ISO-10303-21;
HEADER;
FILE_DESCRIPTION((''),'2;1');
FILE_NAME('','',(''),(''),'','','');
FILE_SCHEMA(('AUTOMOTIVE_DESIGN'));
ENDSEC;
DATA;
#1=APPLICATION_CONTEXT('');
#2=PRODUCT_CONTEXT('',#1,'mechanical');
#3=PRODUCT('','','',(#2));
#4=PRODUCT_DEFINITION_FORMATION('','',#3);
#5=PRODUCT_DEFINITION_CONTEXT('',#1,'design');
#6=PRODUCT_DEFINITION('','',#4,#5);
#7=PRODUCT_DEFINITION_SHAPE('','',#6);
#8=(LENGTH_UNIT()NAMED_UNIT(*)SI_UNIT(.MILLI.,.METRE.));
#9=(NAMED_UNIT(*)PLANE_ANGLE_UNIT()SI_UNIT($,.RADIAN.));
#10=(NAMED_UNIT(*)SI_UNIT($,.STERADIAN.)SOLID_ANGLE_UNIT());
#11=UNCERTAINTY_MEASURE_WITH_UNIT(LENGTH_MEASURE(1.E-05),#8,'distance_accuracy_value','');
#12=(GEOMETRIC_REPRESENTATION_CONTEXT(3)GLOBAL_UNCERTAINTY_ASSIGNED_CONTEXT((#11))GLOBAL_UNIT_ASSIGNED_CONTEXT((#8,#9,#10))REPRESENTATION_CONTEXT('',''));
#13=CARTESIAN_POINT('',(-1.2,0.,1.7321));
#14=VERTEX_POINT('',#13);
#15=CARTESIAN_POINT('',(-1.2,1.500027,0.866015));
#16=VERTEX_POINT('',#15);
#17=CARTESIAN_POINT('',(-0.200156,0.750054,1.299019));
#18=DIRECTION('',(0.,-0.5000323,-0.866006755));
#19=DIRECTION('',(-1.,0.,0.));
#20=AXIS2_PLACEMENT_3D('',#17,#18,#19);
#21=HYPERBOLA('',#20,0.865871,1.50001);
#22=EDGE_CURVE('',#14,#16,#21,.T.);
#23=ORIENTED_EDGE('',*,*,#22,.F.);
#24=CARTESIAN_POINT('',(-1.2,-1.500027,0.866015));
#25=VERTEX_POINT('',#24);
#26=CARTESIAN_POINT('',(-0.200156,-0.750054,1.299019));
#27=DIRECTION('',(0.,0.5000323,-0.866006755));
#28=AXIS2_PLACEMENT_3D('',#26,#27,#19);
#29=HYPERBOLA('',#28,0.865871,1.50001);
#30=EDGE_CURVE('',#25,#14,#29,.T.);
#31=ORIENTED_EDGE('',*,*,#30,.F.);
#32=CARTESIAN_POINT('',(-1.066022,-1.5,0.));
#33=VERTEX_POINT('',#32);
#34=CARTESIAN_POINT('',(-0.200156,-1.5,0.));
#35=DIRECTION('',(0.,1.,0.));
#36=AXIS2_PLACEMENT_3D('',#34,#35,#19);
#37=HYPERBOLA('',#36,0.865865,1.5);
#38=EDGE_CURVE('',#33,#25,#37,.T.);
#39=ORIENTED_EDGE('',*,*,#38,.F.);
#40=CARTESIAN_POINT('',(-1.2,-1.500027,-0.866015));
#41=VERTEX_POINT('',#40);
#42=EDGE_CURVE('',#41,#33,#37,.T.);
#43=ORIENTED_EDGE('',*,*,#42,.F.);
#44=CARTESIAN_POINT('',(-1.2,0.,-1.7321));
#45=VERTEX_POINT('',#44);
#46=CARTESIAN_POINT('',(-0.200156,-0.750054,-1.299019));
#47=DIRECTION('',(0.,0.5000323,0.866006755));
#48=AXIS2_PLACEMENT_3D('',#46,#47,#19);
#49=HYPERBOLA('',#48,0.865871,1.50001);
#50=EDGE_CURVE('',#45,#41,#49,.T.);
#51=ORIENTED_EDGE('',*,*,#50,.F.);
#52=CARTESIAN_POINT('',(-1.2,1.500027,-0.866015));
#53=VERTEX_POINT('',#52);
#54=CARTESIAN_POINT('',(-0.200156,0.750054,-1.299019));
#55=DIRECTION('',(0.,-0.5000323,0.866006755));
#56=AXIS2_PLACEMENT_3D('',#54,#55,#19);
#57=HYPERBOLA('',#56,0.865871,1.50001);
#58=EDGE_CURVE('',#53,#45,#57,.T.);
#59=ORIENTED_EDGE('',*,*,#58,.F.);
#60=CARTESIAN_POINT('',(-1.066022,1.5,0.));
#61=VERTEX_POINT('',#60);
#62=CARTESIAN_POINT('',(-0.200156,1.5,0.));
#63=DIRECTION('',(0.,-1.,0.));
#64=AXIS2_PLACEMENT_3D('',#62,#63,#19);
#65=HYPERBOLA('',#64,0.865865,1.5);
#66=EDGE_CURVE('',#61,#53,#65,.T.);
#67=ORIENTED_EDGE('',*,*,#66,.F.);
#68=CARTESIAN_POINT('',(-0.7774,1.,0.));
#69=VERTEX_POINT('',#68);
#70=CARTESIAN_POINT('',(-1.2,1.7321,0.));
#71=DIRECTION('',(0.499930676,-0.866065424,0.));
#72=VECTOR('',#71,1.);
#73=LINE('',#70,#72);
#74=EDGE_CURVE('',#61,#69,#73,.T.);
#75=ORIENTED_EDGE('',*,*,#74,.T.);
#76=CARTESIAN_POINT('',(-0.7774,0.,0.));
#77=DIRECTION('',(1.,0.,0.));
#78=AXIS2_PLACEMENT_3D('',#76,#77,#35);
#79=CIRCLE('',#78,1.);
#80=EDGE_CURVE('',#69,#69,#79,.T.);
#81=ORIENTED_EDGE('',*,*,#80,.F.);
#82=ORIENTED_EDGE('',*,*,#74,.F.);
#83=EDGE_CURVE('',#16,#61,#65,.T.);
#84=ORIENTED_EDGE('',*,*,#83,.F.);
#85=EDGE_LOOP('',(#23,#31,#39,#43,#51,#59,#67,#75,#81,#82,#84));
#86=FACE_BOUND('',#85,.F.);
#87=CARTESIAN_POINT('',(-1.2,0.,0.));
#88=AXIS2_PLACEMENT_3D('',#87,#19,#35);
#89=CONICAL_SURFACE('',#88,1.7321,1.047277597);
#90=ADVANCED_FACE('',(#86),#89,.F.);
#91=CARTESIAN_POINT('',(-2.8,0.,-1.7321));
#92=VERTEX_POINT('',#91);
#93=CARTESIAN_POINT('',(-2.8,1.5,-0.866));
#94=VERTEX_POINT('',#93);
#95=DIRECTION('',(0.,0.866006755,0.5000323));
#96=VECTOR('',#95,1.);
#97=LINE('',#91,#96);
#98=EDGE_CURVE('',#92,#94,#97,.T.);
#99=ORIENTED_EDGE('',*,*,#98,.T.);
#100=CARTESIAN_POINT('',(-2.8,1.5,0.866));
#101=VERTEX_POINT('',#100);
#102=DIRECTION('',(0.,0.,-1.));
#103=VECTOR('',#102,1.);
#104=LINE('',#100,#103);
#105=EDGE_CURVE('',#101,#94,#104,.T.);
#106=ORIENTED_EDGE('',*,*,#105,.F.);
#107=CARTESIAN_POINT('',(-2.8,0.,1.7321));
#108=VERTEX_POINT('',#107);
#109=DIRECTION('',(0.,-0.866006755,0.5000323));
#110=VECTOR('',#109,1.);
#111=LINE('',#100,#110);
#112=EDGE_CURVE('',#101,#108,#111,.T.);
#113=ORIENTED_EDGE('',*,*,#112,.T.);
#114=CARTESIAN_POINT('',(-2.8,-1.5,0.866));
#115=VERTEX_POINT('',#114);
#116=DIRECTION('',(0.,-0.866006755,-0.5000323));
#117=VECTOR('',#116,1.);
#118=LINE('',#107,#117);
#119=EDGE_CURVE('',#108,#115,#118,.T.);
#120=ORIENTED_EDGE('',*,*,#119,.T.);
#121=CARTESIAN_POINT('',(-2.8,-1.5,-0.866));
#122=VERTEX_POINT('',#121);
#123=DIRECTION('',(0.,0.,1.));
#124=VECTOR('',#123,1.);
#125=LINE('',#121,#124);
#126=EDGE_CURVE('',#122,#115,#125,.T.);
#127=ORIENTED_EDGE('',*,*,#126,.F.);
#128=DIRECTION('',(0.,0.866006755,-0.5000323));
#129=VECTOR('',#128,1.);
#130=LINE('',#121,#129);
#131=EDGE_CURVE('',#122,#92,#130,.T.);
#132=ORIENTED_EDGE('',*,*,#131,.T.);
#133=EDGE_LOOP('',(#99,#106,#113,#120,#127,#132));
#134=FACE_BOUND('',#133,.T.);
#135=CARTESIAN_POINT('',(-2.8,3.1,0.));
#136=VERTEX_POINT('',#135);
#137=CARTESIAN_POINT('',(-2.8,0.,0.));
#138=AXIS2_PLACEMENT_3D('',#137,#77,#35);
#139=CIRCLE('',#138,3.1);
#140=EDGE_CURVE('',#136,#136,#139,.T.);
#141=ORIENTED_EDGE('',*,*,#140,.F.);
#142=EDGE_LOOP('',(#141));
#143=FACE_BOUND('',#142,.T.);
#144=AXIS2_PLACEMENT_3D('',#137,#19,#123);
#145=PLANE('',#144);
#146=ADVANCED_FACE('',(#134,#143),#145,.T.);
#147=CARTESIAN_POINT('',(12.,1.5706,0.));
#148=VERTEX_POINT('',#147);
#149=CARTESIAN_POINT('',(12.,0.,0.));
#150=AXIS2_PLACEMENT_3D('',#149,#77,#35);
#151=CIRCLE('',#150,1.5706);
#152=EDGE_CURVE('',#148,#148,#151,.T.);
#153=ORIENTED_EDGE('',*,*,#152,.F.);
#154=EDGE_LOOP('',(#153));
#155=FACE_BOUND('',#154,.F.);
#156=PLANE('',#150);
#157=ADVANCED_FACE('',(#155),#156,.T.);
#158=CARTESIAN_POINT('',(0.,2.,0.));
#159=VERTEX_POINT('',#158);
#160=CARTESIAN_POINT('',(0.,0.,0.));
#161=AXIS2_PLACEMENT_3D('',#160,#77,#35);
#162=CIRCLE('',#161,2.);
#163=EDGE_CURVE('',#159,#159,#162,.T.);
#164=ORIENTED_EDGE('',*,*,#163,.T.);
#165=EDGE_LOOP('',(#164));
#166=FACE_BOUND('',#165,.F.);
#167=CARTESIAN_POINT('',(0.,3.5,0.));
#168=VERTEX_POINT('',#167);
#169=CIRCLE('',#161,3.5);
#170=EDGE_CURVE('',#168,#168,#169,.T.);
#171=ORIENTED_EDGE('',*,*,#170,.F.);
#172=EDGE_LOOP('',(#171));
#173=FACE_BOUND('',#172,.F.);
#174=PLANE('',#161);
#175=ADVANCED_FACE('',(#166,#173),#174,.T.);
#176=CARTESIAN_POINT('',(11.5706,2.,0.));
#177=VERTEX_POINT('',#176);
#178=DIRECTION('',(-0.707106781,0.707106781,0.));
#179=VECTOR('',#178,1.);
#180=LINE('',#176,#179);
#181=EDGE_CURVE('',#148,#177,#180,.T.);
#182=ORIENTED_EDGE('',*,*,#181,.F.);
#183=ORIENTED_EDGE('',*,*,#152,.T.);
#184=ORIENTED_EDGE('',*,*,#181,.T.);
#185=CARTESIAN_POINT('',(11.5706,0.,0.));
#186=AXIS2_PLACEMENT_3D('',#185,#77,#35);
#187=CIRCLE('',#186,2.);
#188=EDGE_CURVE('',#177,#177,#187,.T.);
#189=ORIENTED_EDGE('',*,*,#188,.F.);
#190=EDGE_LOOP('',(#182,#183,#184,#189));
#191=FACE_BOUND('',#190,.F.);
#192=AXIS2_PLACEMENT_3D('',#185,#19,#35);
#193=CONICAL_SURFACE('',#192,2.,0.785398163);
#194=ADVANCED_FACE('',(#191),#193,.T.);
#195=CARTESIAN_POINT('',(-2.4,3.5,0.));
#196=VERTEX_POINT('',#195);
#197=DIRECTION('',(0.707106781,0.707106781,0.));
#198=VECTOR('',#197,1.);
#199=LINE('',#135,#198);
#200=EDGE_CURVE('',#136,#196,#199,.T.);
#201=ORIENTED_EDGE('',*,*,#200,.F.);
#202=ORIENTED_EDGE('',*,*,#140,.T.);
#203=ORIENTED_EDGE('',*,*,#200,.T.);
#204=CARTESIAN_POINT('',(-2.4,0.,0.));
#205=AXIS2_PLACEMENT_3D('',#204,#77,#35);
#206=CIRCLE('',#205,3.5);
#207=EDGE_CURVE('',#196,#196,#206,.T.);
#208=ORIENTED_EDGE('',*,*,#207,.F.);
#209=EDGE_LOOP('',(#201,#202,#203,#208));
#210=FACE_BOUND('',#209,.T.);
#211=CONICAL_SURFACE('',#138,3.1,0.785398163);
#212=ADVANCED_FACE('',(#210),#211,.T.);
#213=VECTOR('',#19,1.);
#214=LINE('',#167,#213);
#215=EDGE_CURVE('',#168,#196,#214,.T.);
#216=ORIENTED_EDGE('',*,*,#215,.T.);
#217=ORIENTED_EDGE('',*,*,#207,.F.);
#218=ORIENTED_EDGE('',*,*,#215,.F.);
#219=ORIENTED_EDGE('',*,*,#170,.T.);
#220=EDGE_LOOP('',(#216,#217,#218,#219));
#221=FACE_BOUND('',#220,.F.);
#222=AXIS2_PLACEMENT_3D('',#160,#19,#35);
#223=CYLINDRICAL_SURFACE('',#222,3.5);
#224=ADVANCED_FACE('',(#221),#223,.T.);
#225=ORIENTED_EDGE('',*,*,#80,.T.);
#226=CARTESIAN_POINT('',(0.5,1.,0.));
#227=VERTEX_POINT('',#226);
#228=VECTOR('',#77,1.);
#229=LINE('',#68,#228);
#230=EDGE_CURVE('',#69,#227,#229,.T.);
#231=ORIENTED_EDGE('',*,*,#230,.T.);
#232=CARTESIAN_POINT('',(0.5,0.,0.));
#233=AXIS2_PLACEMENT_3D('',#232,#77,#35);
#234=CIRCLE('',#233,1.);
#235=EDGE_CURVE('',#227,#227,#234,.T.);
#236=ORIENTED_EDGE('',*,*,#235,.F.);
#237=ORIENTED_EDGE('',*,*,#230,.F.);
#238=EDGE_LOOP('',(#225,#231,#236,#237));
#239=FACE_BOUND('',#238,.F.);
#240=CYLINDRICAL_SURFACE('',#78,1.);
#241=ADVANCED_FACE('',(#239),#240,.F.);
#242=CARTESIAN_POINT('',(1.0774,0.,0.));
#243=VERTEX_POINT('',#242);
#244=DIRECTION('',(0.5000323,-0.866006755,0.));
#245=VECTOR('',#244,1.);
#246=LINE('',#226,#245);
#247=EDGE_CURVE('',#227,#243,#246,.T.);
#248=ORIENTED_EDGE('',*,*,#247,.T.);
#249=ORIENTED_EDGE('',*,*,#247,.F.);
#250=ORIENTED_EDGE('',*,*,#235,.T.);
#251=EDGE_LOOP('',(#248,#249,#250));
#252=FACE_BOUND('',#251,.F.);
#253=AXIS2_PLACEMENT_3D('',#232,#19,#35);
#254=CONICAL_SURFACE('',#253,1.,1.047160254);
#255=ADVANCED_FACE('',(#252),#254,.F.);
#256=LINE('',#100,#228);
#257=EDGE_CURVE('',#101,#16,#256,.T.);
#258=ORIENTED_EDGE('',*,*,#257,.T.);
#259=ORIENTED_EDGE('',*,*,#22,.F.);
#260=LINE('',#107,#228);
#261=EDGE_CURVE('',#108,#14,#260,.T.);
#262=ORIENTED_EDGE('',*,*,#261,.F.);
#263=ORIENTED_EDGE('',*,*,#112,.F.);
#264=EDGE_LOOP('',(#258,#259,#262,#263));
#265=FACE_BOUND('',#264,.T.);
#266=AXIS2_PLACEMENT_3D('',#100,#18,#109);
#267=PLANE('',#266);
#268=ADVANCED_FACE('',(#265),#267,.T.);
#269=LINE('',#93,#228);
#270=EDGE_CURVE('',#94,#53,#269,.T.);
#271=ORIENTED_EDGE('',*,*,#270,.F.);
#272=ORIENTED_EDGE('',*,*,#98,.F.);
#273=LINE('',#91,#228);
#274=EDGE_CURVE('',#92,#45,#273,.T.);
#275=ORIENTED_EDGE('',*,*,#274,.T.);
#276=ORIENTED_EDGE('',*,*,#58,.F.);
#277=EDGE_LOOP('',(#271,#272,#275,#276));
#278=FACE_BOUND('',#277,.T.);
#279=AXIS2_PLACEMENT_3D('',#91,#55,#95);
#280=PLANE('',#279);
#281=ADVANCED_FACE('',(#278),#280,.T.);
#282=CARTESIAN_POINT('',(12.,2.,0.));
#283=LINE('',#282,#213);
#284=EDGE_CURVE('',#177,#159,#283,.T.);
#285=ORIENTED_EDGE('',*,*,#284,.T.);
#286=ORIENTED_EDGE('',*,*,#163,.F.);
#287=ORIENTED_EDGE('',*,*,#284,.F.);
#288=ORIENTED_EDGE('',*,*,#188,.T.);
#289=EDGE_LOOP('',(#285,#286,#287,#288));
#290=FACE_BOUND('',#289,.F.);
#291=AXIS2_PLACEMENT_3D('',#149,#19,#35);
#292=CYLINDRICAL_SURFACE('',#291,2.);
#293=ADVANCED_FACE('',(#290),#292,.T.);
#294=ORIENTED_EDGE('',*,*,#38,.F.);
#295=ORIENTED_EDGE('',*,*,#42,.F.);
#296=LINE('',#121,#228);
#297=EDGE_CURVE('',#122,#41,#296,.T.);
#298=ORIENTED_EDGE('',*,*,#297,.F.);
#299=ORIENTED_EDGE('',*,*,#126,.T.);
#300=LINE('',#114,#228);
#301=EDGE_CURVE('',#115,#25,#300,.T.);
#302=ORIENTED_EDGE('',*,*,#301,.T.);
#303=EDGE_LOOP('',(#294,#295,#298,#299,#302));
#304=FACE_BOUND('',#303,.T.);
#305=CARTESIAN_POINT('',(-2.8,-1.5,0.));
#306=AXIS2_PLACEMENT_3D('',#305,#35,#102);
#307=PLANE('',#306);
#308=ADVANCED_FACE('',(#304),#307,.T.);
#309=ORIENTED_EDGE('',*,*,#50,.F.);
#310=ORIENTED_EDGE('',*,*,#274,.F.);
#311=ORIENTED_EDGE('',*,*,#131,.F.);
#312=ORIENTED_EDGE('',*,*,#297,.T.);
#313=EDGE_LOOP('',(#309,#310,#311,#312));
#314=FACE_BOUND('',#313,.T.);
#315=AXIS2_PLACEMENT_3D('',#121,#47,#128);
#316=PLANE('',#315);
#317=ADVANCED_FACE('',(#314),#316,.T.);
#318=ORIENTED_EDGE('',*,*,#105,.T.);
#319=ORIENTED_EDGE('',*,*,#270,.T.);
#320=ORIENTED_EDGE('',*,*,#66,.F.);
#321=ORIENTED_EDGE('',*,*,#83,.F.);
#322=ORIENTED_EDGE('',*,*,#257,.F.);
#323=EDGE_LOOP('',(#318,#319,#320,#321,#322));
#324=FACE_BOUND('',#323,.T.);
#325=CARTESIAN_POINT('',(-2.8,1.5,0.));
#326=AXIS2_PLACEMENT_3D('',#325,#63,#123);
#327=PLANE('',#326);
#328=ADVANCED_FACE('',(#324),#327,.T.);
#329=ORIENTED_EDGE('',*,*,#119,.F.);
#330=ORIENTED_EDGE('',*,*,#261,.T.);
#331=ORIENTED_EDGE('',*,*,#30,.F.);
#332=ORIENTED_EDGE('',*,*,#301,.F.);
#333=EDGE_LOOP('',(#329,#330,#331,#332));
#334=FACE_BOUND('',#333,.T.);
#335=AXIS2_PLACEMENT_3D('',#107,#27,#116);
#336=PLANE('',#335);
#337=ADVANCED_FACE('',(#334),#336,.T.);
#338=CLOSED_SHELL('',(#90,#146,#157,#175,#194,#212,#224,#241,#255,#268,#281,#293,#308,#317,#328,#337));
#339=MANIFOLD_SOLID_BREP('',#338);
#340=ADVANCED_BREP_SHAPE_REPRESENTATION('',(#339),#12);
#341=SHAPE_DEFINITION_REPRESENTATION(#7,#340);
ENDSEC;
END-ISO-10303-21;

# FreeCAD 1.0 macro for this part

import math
import FreeCAD as App
import Part
import Sketcher


def edges_at(feature, points):
    """Names of the edges that pass closest to the given points."""
    edges = feature.Shape.Edges
    near = lambda p: min(range(len(edges)), key=lambda i: edges[i].distToShape(Part.Vertex(*p))[0])
    return sorted({f"Edge{near(p) + 1}" for p in points})


def add_polygon(sketch, points):
    """Adds a closed chain of lines whose ends are joined by coincident constraints."""
    first, n = sketch.GeometryCount, len(points)
    for a, b in zip(points, points[1:] + points[:1]):
        sketch.addGeometry(Part.LineSegment(App.Vector(*a, 0), App.Vector(*b, 0)), False)
    for i in range(n):
        sketch.addConstraint(Sketcher.Constraint("Coincident", first + i, 2, first + (i + 1) % n, 1))

doc = App.newDocument("Part")
body = doc.addObject("PartDesign::Body", "Body")

sketch1 = body.newObject("Sketcher::SketchObject", "Sketch")
sketch1.AttachmentSupport = (doc.getObject("XY_Plane"), [""])
sketch1.MapMode = "FlatFace"
add_polygon(sketch1, [(0.5, 1), (1.1, 0), (12, 0), (12, 2), (0, 2), (0, 3.5), (-2.8, 3.5), (-2.8, 1.7), (-1.2, 1.7), (-0.8, 1)])
sketch1.addConstraint(Sketcher.Constraint("Horizontal", 1))
sketch1.addConstraint(Sketcher.Constraint("Vertical", 2))
sketch1.addConstraint(Sketcher.Constraint("Horizontal", 3))
sketch1.addConstraint(Sketcher.Constraint("Vertical", 4))
sketch1.addConstraint(Sketcher.Constraint("Horizontal", 5))
sketch1.addConstraint(Sketcher.Constraint("Vertical", 6))
sketch1.addConstraint(Sketcher.Constraint("Horizontal", 7))
sketch1.addConstraint(Sketcher.Constraint("Horizontal", 9))
sketch1.addConstraint(Sketcher.Constraint("PointOnObject", 0, 2, -1))
sketch1.addConstraint(Sketcher.Constraint("PointOnObject", 3, 2, -2))
sketch1.addConstraint(Sketcher.Constraint("Parallel", 0, 8))
sketch1.addConstraint(Sketcher.Constraint("DistanceX", 3, 2, 3, 1, 12.0))
sketch1.addConstraint(Sketcher.Constraint("DistanceY", 2, 1, 2, 2, 2.0))
sketch1.addConstraint(Sketcher.Constraint("DistanceX", 5, 2, 5, 1, 2.8))
sketch1.addConstraint(Sketcher.Constraint("DistanceX", 7, 1, 7, 2, 1.6))
sketch1.addConstraint(Sketcher.Constraint("DistanceY", 4, 1, 4, 2, 1.5))
sketch1.addConstraint(Sketcher.Constraint("DistanceY", -1, 1, 8, 2, 1.0))
sketch1.addConstraint(Sketcher.Constraint("DistanceX", -1, 1, 9, 2, 0.5))
sketch1.addConstraint(Sketcher.Constraint("DistanceY", 6, 2, 6, 1, 1.768))
sketch1.addConstraint(Sketcher.Constraint("DistanceX", 1, 1, 1, 2, 10.9226))
revolution = body.newObject("PartDesign::Revolution", "Revolution")
revolution.Profile = sketch1
revolution.ReferenceAxis = (sketch1, ["H_Axis"])
revolution.Angle = 360

sketch2 = body.newObject("Sketcher::SketchObject", "Sketch001")
sketch2.AttachmentSupport = (doc.getObject("XY_Plane"), [""])
sketch2.MapMode = "FlatFace"
add_polygon(sketch2, [(-2.8, 3.1), (-2.4, 3.5), (-2.8, 3.5)])
sketch2.addConstraint(Sketcher.Constraint("Horizontal", 1))
sketch2.addConstraint(Sketcher.Constraint("Vertical", 2))
sketch2.addConstraint(Sketcher.Constraint("Equal", 1, 2))
sketch2.addConstraint(Sketcher.Constraint("DistanceX", 1, 2, 1, 1, 0.4))
sketch2.addConstraint(Sketcher.Constraint("DistanceX", 1, 2, -1, 1, 2.8))
sketch2.addConstraint(Sketcher.Constraint("DistanceY", -1, 1, 0, 2, 3.5))
groove = body.newObject("PartDesign::Groove", "Groove")
groove.Profile = sketch2
groove.ReferenceAxis = (sketch2, ["H_Axis"])
groove.Angle = 360

sketch3 = body.newObject("Sketcher::SketchObject", "Sketch002")
sketch3.AttachmentSupport = (doc.getObject("YZ_Plane"), [""])
sketch3.MapMode = "FlatFace"
sketch3.AttachmentOffset = App.Placement(App.Vector(0, 0, -2.8), App.Rotation())
sketch3.addGeometry(Part.LineSegment(App.Vector(1.5, 0.9, 0), App.Vector(0, 1.7, 0)), False)
sketch3.addGeometry(Part.ArcOfCircle(Part.Circle(App.Vector(0, 0, 0), App.Vector(0, 0, 1), 1.7), math.radians(30), math.radians(90)), False)
sketch3.addGeometry(Part.ArcOfCircle(Part.Circle(App.Vector(0, 0, 0), App.Vector(0, 0, 1), 1.7), math.radians(90), math.radians(150)), False)
sketch3.addGeometry(Part.LineSegment(App.Vector(0, 1.7, 0), App.Vector(-1.5, 0.9, 0)), False)
sketch3.addGeometry(Part.ArcOfCircle(Part.Circle(App.Vector(0, 0, 0), App.Vector(0, 0, 1), 1.7), math.radians(-30), math.radians(30)), False)
sketch3.addGeometry(Part.LineSegment(App.Vector(1.5, 0.9, 0), App.Vector(1.5, -0.9, 0)), False)
sketch3.addGeometry(Part.LineSegment(App.Vector(-1.5, 0.9, 0), App.Vector(-1.5, -0.9, 0)), False)
sketch3.addGeometry(Part.ArcOfCircle(Part.Circle(App.Vector(0, 0, 0), App.Vector(0, 0, 1), 1.7), math.radians(150), math.radians(210)), False)
sketch3.addGeometry(Part.LineSegment(App.Vector(-1.5, -0.9, 0), App.Vector(0, -1.7, 0)), False)
sketch3.addGeometry(Part.ArcOfCircle(Part.Circle(App.Vector(0, 0, 0), App.Vector(0, 0, 1), 1.7), math.radians(-150), math.radians(-90)), False)
sketch3.addGeometry(Part.ArcOfCircle(Part.Circle(App.Vector(0, 0, 0), App.Vector(0, 0, 1), 1.7), math.radians(-90), math.radians(-30)), False)
sketch3.addGeometry(Part.LineSegment(App.Vector(0, -1.7, 0), App.Vector(1.5, -0.9, 0)), False)
sketch3.addConstraint(Sketcher.Constraint("Coincident", 0, 1, 1, 1))
sketch3.addConstraint(Sketcher.Constraint("Coincident", 1, 2, 0, 2))
sketch3.addConstraint(Sketcher.Constraint("Coincident", 2, 1, 3, 1))
sketch3.addConstraint(Sketcher.Constraint("Coincident", 3, 2, 2, 2))
sketch3.addConstraint(Sketcher.Constraint("Coincident", 4, 1, 5, 2))
sketch3.addConstraint(Sketcher.Constraint("Coincident", 5, 1, 4, 2))
sketch3.addConstraint(Sketcher.Constraint("Coincident", 6, 1, 7, 1))
sketch3.addConstraint(Sketcher.Constraint("Coincident", 7, 2, 6, 2))
sketch3.addConstraint(Sketcher.Constraint("Coincident", 8, 1, 9, 1))
sketch3.addConstraint(Sketcher.Constraint("Coincident", 9, 2, 8, 2))
sketch3.addConstraint(Sketcher.Constraint("Coincident", 10, 1, 11, 1))
sketch3.addConstraint(Sketcher.Constraint("Coincident", 11, 2, 10, 2))
sketch3.addConstraint(Sketcher.Constraint("Vertical", 5))
sketch3.addConstraint(Sketcher.Constraint("Vertical", 6))
sketch3.addConstraint(Sketcher.Constraint("Coincident", 1, 3, -1, 1))
sketch3.addConstraint(Sketcher.Constraint("Coincident", 2, 3, -1, 1))
sketch3.addConstraint(Sketcher.Constraint("Coincident", 4, 3, -1, 1))
sketch3.addConstraint(Sketcher.Constraint("Coincident", 7, 3, -1, 1))
sketch3.addConstraint(Sketcher.Constraint("Coincident", 9, 3, -1, 1))
sketch3.addConstraint(Sketcher.Constraint("Coincident", 10, 3, -1, 1))
sketch3.addConstraint(Sketcher.Constraint("Coincident", 2, 1, 1, 2))
sketch3.addConstraint(Sketcher.Constraint("Coincident", 5, 1, 0, 1))
sketch3.addConstraint(Sketcher.Constraint("Coincident", 6, 1, 3, 2))
sketch3.addConstraint(Sketcher.Constraint("Coincident", 8, 1, 7, 2))
sketch3.addConstraint(Sketcher.Constraint("Coincident", 10, 1, 9, 2))
sketch3.addConstraint(Sketcher.Constraint("PointOnObject", 1, 2, -2))
sketch3.addConstraint(Sketcher.Constraint("PointOnObject", 9, 2, -2))
sketch3.addConstraint(Sketcher.Constraint("Parallel", 0, 8))
sketch3.addConstraint(Sketcher.Constraint("Parallel", 3, 11))
sketch3.addConstraint(Sketcher.Constraint("Radius", 1, 1.732))
sketch3.addConstraint(Sketcher.Constraint("DistanceX", -1, 1, 0, 1, 1.5))
pad1 = body.newObject("PartDesign::Pad", "Pad")
pad1.Profile = sketch3
pad1.Length = 1.734
doc.recompute()

chamfer = body.newObject("PartDesign::Chamfer", "Chamfer")
chamfer.Base = (pad1, edges_at(pad1, [(12, -2, 0)]))
chamfer.ChamferType = "Two distances"
chamfer.Size = 0.4294
chamfer.Size2 = 0.4294

doc.recompute()
